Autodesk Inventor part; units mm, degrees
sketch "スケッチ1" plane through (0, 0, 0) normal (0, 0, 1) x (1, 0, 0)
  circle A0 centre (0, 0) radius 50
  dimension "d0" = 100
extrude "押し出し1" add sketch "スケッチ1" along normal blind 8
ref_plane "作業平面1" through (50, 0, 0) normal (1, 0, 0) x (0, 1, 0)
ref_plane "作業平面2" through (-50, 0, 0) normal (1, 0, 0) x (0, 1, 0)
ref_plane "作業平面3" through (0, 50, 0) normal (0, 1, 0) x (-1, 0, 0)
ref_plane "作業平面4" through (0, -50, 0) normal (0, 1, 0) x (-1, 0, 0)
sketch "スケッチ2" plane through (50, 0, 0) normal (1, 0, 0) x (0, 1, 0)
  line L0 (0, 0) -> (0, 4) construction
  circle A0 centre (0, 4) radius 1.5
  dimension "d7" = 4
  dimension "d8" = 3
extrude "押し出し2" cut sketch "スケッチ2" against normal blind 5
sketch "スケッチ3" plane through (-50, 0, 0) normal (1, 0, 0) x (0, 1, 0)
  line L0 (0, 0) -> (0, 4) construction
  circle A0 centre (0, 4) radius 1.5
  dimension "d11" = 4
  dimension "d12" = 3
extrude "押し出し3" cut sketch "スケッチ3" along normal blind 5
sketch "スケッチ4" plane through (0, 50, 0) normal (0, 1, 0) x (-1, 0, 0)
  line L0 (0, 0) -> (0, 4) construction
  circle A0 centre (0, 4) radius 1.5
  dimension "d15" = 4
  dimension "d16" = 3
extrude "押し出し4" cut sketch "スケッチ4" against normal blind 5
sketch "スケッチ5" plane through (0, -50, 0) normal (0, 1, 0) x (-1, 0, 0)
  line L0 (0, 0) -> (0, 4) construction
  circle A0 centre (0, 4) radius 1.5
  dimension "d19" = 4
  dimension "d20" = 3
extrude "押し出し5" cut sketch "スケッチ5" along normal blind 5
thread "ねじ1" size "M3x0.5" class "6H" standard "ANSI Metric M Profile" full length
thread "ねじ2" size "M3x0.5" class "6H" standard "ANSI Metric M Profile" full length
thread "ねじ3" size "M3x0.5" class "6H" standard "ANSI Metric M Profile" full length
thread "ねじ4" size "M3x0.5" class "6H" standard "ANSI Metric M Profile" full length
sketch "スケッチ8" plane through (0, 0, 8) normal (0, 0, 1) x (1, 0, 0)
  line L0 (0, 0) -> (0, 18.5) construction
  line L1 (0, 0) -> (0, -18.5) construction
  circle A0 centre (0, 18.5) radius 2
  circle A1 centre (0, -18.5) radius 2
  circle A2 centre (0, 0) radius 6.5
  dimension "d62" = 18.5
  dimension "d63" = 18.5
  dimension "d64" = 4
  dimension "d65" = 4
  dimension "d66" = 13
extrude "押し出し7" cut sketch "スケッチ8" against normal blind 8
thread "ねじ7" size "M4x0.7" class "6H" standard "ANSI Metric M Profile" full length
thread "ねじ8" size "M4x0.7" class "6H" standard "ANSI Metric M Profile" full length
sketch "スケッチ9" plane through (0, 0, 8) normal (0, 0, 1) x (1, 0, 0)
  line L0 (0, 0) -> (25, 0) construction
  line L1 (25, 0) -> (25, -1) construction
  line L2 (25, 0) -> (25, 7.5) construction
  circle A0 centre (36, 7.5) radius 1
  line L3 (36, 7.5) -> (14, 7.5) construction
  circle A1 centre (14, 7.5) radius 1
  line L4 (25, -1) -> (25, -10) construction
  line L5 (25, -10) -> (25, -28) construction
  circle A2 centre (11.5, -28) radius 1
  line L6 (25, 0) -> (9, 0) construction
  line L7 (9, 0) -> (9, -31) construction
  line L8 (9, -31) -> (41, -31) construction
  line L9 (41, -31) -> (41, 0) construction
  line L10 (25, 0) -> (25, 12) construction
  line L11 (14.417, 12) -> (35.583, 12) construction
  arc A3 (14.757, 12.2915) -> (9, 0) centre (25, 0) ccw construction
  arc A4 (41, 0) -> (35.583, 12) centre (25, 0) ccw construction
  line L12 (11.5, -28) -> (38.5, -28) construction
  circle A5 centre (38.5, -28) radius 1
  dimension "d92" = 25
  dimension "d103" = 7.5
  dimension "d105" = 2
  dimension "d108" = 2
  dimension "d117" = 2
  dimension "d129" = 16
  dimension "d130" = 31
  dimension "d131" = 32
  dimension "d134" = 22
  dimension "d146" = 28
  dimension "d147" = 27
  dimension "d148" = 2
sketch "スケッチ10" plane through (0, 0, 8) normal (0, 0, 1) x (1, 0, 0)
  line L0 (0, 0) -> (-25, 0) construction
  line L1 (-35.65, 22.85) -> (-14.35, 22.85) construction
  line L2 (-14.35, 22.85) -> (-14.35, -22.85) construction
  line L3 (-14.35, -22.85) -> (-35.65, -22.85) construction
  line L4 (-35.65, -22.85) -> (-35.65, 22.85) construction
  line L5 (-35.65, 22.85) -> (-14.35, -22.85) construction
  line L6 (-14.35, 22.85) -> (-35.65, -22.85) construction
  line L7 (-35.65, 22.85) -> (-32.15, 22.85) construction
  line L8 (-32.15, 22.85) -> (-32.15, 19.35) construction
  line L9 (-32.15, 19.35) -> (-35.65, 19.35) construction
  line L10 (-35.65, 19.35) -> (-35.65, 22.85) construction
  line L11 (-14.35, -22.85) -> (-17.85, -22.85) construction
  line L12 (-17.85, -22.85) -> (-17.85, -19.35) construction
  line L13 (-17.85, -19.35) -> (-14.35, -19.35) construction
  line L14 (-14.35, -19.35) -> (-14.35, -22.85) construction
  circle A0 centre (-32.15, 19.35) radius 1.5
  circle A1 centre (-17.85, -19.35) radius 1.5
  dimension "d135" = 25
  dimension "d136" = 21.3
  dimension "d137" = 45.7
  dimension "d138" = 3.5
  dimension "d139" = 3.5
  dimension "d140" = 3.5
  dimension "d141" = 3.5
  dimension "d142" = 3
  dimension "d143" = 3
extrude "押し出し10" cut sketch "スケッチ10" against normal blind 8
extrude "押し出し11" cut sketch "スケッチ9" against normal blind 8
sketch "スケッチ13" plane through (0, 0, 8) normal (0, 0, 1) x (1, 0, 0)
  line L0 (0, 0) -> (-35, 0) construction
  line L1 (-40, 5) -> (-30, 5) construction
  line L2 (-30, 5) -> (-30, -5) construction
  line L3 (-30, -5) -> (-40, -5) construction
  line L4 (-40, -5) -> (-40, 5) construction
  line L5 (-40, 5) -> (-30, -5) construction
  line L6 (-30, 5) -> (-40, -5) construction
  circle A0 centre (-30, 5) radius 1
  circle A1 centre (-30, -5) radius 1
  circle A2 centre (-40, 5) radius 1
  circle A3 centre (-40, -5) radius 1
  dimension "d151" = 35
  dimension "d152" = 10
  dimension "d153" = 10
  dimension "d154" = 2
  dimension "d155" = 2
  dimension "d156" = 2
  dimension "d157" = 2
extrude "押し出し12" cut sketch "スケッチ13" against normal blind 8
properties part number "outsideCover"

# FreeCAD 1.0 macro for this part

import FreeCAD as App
import Part
import Sketcher

V = App.Vector

doc = App.newDocument("Part")
body = doc.addObject("PartDesign::Body", "Body")

sketch1 = doc.addObject("Sketcher::SketchObject", "Sketch")
body.addObject(sketch1)
sketch1.AttachmentSupport = (doc.XY_Plane, [""])
sketch1.MapMode = "FlatFace"
sketch1.addGeometry(Part.Circle(V(0, 0, 0), V(0, 0, 1), 50), False)
sketch1.addConstraint([
    Sketcher.Constraint("Coincident", 0, 3, -1, 1),
    Sketcher.Constraint("Diameter", 0, 100.0),
])
pad1 = doc.addObject("PartDesign::Pad", "Pad")
body.addObject(pad1)
pad1.Profile = sketch1
pad1.Length = 8

sketch2 = doc.addObject("Sketcher::SketchObject", "Sketch001")
body.addObject(sketch2)
sketch2.AttachmentSupport = (doc.YZ_Plane, [""])
sketch2.MapMode = "FlatFace"
sketch2.AttachmentOffset = App.Placement(V(0, 0, 50), App.Rotation())
sketch2.addGeometry(Part.Circle(V(0, 4, 0), V(0, 0, 1), 1.5), False)
sketch2.addConstraint([
    Sketcher.Constraint("PointOnObject", 0, 3, -2),
    Sketcher.Constraint("Diameter", 0, 3.0),
    Sketcher.Constraint("DistanceY", -1, 1, 0, 3, 4.0),
])
pocket1 = doc.addObject("PartDesign::Pocket", "Pocket")
body.addObject(pocket1)
pocket1.Profile = sketch2
pocket1.Length = 5

sketch3 = doc.addObject("Sketcher::SketchObject", "Sketch002")
body.addObject(sketch3)
sketch3.AttachmentSupport = (doc.YZ_Plane, [""])
sketch3.MapMode = "FlatFace"
sketch3.AttachmentOffset = App.Placement(V(0, 0, -50), App.Rotation())
sketch3.addGeometry(Part.Circle(V(0, 4, 0), V(0, 0, 1), 1.5), False)
sketch3.addConstraint([
    Sketcher.Constraint("PointOnObject", 0, 3, -2),
    Sketcher.Constraint("Diameter", 0, 3.0),
    Sketcher.Constraint("DistanceY", -1, 1, 0, 3, 4.0),
])
pocket2 = doc.addObject("PartDesign::Pocket", "Pocket001")
body.addObject(pocket2)
pocket2.Profile = sketch3
pocket2.Length = 5
pocket2.Reversed = True

sketch4 = doc.addObject("Sketcher::SketchObject", "Sketch003")
body.addObject(sketch4)
sketch4.AttachmentSupport = (doc.XZ_Plane, [""])
sketch4.MapMode = "FlatFace"
sketch4.AttachmentOffset = App.Placement(V(0, 0, -50), App.Rotation())
sketch4.addGeometry(Part.Circle(V(0, 4, 0), V(0, 0, 1), 1.5), False)
sketch4.addConstraint([
    Sketcher.Constraint("PointOnObject", 0, 3, -2),
    Sketcher.Constraint("Diameter", 0, 3.0),
    Sketcher.Constraint("DistanceY", -1, 1, 0, 3, 4.0),
])
pocket3 = doc.addObject("PartDesign::Pocket", "Pocket002")
body.addObject(pocket3)
pocket3.Profile = sketch4
pocket3.Length = 5
pocket3.Reversed = True

sketch5 = doc.addObject("Sketcher::SketchObject", "Sketch004")
body.addObject(sketch5)
sketch5.AttachmentSupport = (doc.XZ_Plane, [""])
sketch5.MapMode = "FlatFace"
sketch5.AttachmentOffset = App.Placement(V(0, 0, 50), App.Rotation())
sketch5.addGeometry(Part.Circle(V(0, 4, 0), V(0, 0, 1), 1.5), False)
sketch5.addConstraint([
    Sketcher.Constraint("PointOnObject", 0, 3, -2),
    Sketcher.Constraint("Diameter", 0, 3.0),
    Sketcher.Constraint("DistanceY", -1, 1, 0, 3, 4.0),
])
pocket4 = doc.addObject("PartDesign::Pocket", "Pocket003")
body.addObject(pocket4)
pocket4.Profile = sketch5
pocket4.Length = 5

sketch6 = doc.addObject("Sketcher::SketchObject", "Sketch005")
body.addObject(sketch6)
sketch6.AttachmentSupport = (doc.XY_Plane, [""])
sketch6.MapMode = "FlatFace"
sketch6.AttachmentOffset = App.Placement(V(0, 0, 8), App.Rotation())
sketch6.addGeometry([
    Part.Circle(V(0, 18.5, 0), V(0, 0, 1), 2),
    Part.Circle(V(0, -18.5, 0), V(0, 0, 1), 2),
    Part.Circle(V(0, 0, 0), V(0, 0, 1), 6.5),
], False)
sketch6.addConstraint([
    Sketcher.Constraint("Coincident", 2, 3, -1, 1),
    Sketcher.Constraint("Equal", 0, 1),
    Sketcher.Constraint("Symmetric", 0, 3, 1, 3, -1, 1),
    Sketcher.Constraint("PointOnObject", 0, 3, -2),
    Sketcher.Constraint("Diameter", 0, 4.0),
    Sketcher.Constraint("Diameter", 2, 13.0),
    Sketcher.Constraint("DistanceY", -1, 1, 0, 3, 18.5),
])
pocket5 = doc.addObject("PartDesign::Pocket", "Pocket004")
body.addObject(pocket5)
pocket5.Profile = sketch6
pocket5.Length = 8

sketch7 = doc.addObject("Sketcher::SketchObject", "Sketch006")
body.addObject(sketch7)
sketch7.AttachmentSupport = (doc.XY_Plane, [""])
sketch7.MapMode = "FlatFace"
sketch7.AttachmentOffset = App.Placement(V(0, 0, 8), App.Rotation())
sketch7.addGeometry([
    Part.Circle(V(-32.15, 19.35, 0), V(0, 0, 1), 1.5),
    Part.Circle(V(-17.85, -19.35, 0), V(0, 0, 1), 1.5),
], False)
sketch7.addConstraint([
    Sketcher.Constraint("Equal", 0, 1),
    Sketcher.Constraint("Diameter", 0, 3.0),
    Sketcher.Constraint("DistanceX", 0, 3, 1, 3, 14.3),
    Sketcher.Constraint("DistanceY", 1, 3, 0, 3, 38.7),
    Sketcher.Constraint("DistanceX", 0, 3, -1, 1, 32.15),
    Sketcher.Constraint("DistanceY", -1, 1, 0, 3, 19.35),
])
pocket6 = doc.addObject("PartDesign::Pocket", "Pocket005")
body.addObject(pocket6)
pocket6.Profile = sketch7
pocket6.Length = 8

sketch8 = doc.addObject("Sketcher::SketchObject", "Sketch007")
body.addObject(sketch8)
sketch8.AttachmentSupport = (doc.XY_Plane, [""])
sketch8.MapMode = "FlatFace"
sketch8.AttachmentOffset = App.Placement(V(0, 0, 8), App.Rotation())
sketch8.addGeometry([
    Part.Circle(V(36, 7.5, 0), V(0, 0, 1), 1),
    Part.Circle(V(14, 7.5, 0), V(0, 0, 1), 1),
    Part.Circle(V(11.5, -28, 0), V(0, 0, 1), 1),
    Part.Circle(V(38.5, -28, 0), V(0, 0, 1), 1),
], False)
sketch8.addConstraint([
    Sketcher.Constraint("Equal", 0, 1),
    Sketcher.Constraint("Equal", 1, 2),
    Sketcher.Constraint("Equal", 2, 3),
    Sketcher.Constraint("Horizontal", 0, 3, 1, 3),
    Sketcher.Constraint("Horizontal", 2, 3, 3, 3),
    Sketcher.Constraint("Diameter", 0, 2.0),
    Sketcher.Constraint("DistanceY", 2, 3, -1, 1, 28.0),
    Sketcher.Constraint("DistanceX", 1, 3, 0, 3, 22.0),
    Sketcher.Constraint("DistanceX", 2, 3, 3, 3, 27.0),
    Sketcher.Constraint("DistanceY", -1, 1, 0, 3, 7.5),
    Sketcher.Constraint("DistanceX", -1, 1, 0, 3, 36.0),
    Sketcher.Constraint("DistanceX", -1, 1, 2, 3, 11.5),
])
pocket7 = doc.addObject("PartDesign::Pocket", "Pocket006")
body.addObject(pocket7)
pocket7.Profile = sketch8
pocket7.Length = 8

sketch9 = doc.addObject("Sketcher::SketchObject", "Sketch008")
body.addObject(sketch9)
sketch9.AttachmentSupport = (doc.XY_Plane, [""])
sketch9.MapMode = "FlatFace"
sketch9.AttachmentOffset = App.Placement(V(0, 0, 8), App.Rotation())
sketch9.addGeometry([
    Part.Circle(V(-30, 5, 0), V(0, 0, 1), 1),
    Part.Circle(V(-30, -5, 0), V(0, 0, 1), 1),
    Part.Circle(V(-40, 5, 0), V(0, 0, 1), 1),
    Part.Circle(V(-40, -5, 0), V(0, 0, 1), 1),
], False)
sketch9.addConstraint([
    Sketcher.Constraint("Equal", 0, 1),
    Sketcher.Constraint("Equal", 1, 2),
    Sketcher.Constraint("Equal", 2, 3),
    Sketcher.Constraint("Symmetric", 0, 3, 1, 3, -1),
    Sketcher.Constraint("Symmetric", 2, 3, 3, 3, -1),
    Sketcher.Constraint("Horizontal", 0, 3, 2, 3),
    Sketcher.Constraint("Diameter", 0, 2.0),
    Sketcher.Constraint("DistanceY", 1, 3, 0, 3, 10.0),
    Sketcher.Constraint("DistanceX", 2, 3, 0, 3, 10.0),
    Sketcher.Constraint("DistanceX", 0, 3, -1, 1, 30.0),
])
pocket8 = doc.addObject("PartDesign::Pocket", "Pocket007")
body.addObject(pocket8)
pocket8.Profile = sketch9
pocket8.Length = 8

doc.recompute()
